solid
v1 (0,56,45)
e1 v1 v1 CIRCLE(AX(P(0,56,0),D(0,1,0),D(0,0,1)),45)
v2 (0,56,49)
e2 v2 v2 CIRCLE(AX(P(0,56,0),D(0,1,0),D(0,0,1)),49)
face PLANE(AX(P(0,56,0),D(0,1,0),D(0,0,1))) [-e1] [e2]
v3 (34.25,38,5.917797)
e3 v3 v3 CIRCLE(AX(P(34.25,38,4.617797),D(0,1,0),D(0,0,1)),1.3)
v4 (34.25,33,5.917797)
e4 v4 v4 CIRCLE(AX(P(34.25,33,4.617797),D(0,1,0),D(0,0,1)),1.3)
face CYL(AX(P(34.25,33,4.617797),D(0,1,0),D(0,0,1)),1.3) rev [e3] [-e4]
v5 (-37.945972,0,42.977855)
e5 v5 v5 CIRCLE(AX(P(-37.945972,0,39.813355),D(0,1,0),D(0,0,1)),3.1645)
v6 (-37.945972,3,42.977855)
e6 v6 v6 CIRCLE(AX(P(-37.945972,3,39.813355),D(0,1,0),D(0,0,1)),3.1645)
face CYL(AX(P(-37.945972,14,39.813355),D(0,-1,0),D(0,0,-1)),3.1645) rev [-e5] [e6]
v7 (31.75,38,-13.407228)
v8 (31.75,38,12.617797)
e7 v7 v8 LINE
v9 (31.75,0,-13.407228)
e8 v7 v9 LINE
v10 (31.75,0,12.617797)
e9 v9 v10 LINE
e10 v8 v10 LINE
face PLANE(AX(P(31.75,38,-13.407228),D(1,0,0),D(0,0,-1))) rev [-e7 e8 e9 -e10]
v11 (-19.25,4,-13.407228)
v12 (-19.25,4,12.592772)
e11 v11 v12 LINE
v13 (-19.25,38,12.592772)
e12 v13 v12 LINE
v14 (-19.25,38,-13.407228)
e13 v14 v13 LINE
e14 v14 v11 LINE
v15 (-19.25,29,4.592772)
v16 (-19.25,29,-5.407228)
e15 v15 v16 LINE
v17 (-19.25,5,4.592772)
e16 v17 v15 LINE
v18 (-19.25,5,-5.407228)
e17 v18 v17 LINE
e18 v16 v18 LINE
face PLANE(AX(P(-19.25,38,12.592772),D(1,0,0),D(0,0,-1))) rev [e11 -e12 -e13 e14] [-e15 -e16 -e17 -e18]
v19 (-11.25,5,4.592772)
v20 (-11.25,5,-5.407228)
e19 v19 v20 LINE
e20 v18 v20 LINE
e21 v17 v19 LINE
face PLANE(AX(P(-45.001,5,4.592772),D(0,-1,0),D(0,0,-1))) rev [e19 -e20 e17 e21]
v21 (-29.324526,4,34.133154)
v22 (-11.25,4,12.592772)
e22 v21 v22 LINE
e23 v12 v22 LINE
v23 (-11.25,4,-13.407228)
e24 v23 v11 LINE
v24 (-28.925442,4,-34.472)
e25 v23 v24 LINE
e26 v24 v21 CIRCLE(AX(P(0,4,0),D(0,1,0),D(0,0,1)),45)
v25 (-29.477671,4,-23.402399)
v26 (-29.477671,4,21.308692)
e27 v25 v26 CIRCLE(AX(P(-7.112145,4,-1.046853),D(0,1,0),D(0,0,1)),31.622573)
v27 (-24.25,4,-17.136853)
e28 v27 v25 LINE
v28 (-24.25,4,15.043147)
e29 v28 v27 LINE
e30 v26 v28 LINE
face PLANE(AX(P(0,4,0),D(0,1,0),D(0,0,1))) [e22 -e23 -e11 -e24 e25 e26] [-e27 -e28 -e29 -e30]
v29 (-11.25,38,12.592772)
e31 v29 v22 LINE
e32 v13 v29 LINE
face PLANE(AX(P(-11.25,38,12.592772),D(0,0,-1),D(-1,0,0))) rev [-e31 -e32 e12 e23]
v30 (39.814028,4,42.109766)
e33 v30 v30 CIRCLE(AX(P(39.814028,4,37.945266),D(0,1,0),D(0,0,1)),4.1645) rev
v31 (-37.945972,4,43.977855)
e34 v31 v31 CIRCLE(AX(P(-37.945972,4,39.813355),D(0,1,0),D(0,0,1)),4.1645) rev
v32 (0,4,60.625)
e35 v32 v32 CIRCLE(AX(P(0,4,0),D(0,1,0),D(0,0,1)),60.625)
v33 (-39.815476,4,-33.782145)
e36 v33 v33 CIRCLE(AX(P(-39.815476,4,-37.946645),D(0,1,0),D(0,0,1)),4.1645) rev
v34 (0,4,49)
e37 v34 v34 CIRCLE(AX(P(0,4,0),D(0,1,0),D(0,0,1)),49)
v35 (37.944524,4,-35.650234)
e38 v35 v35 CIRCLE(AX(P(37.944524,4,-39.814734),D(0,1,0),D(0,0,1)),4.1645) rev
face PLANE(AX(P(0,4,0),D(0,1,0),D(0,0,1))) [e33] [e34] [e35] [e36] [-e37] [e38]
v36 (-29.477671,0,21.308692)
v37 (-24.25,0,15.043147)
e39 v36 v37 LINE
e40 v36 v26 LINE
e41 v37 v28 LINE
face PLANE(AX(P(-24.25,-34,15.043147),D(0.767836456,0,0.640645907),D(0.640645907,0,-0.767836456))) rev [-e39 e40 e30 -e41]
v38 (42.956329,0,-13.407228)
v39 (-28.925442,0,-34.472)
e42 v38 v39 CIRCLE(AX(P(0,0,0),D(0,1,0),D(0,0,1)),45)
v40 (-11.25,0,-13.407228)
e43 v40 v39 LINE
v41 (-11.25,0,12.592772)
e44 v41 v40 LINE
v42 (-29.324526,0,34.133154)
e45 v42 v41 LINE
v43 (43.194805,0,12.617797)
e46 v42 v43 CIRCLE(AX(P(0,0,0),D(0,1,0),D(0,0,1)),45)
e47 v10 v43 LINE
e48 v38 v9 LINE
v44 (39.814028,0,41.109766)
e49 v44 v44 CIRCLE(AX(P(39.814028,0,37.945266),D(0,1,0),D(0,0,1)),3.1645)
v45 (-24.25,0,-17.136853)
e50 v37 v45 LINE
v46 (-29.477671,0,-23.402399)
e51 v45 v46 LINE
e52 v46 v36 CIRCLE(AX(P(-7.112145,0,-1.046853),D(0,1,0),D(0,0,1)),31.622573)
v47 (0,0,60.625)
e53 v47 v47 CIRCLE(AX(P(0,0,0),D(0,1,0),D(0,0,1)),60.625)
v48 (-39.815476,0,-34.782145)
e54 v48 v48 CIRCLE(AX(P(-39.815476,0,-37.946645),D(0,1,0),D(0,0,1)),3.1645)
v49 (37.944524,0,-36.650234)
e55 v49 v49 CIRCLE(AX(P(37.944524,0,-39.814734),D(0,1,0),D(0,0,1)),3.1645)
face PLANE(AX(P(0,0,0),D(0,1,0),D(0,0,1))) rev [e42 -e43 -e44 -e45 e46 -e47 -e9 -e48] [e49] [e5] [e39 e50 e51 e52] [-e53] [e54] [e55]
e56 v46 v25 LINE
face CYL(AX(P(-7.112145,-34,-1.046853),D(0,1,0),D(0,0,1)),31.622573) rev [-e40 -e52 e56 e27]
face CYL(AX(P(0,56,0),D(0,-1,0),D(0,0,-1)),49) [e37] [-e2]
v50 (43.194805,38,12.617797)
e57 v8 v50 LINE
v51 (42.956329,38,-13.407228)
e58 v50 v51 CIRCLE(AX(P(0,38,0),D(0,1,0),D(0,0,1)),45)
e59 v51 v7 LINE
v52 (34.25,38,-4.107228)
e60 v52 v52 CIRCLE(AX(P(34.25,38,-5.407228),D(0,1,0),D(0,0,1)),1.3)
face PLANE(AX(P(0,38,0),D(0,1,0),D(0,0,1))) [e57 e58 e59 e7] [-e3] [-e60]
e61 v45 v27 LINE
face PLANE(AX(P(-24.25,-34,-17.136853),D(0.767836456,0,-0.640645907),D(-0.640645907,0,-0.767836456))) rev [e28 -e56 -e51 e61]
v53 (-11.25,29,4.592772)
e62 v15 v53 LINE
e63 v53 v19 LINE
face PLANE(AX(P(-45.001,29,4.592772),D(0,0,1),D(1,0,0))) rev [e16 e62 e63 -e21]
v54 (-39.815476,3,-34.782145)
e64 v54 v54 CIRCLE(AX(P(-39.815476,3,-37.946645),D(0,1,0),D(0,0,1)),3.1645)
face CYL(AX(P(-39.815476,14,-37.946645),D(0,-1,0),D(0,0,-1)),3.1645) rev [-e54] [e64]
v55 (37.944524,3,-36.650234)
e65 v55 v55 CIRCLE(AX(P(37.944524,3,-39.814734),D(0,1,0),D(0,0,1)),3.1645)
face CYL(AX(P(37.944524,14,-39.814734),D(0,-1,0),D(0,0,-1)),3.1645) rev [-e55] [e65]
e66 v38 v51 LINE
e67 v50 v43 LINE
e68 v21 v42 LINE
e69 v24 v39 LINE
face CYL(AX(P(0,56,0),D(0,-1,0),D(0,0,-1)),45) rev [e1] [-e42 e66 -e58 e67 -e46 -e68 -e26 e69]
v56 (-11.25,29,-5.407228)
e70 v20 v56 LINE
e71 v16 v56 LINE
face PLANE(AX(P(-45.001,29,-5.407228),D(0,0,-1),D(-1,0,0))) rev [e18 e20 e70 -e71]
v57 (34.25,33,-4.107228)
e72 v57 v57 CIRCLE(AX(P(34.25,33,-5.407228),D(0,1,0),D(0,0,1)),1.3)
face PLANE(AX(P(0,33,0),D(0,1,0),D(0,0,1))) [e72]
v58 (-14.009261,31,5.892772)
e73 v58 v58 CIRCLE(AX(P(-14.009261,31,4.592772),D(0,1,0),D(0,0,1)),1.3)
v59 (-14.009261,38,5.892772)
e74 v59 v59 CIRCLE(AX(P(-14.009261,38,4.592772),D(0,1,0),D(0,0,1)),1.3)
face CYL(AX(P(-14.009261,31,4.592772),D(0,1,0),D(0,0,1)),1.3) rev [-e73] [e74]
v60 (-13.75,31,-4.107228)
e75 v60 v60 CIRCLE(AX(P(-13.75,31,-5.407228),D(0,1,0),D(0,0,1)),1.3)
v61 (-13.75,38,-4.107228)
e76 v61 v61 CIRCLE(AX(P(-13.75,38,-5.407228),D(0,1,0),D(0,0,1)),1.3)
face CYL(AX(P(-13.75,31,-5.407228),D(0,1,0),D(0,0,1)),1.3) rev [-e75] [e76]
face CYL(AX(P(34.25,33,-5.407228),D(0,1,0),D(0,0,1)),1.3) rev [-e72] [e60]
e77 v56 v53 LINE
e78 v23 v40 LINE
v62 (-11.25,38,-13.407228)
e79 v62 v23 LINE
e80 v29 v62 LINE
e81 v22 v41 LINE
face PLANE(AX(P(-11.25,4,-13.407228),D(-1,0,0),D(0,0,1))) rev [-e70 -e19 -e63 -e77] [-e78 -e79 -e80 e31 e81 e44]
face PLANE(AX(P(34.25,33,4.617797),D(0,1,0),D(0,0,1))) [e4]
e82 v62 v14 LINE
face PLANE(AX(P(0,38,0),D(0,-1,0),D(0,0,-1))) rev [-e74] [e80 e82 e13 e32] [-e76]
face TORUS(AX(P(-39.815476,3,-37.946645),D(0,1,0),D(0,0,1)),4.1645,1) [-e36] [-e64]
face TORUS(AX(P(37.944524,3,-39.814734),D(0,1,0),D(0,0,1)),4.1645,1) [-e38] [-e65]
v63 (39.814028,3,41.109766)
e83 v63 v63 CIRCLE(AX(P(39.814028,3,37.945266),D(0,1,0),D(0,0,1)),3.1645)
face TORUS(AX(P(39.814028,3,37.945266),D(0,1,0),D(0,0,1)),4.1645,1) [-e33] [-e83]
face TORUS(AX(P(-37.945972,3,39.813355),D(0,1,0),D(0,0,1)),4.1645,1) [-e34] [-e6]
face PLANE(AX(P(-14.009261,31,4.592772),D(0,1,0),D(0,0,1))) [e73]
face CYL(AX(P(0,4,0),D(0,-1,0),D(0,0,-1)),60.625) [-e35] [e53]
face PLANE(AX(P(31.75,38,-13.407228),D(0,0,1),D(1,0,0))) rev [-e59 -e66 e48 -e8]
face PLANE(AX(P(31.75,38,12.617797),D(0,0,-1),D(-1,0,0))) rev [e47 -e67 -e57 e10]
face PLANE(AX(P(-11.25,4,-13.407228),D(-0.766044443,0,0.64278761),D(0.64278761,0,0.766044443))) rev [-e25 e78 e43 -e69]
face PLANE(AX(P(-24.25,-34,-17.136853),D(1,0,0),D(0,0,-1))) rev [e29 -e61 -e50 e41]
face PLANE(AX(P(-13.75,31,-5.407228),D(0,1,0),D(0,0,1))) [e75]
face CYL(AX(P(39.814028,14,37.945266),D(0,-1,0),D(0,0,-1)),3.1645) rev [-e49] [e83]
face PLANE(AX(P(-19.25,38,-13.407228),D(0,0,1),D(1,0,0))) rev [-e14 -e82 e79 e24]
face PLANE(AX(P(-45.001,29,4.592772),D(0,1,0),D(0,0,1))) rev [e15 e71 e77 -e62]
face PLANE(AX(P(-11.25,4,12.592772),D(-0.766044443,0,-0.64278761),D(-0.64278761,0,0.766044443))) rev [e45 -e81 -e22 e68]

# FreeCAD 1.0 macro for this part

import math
import FreeCAD as App
import Part
import Sketcher
Q = App.Units.Quantity


def edges_at(feature, points):
    """Names of the edges that pass closest to the given points."""
    edges = feature.Shape.Edges
    near = lambda p: min(range(len(edges)), key=lambda i: edges[i].distToShape(Part.Vertex(*p))[0])
    return sorted({f"Edge{near(p) + 1}" for p in points})

doc = App.newDocument("Part")
body = doc.addObject("PartDesign::Body", "Body")

# Sketch on XZ plane
sketch1 = body.newObject("Sketcher::SketchObject", "Sketch")
sketch1.AttachmentSupport = (doc.getObject("XZ_Plane"), [""])
sketch1.MapMode = "FlatFace"
sketch1.addGeometry([
    Part.LineSegment(App.Vector(-11, 13, 0), App.Vector(-11, -13, 0)),
    Part.LineSegment(App.Vector(-11, -13, 0), App.Vector(-29, -34, 0)),
    Part.ArcOfCircle(Part.Circle(App.Vector(0, 0, 0), App.Vector(0, 0, 1), 45), math.radians(131), math.radians(230)),
    Part.LineSegment(App.Vector(-29, 34, 0), App.Vector(-11, 13, 0)),
], False)
sketch1.addConstraint([
    Sketcher.Constraint("Coincident", 0, 2, 1, 1),
    Sketcher.Constraint("Coincident", 1, 2, 2, 2),
    Sketcher.Constraint("Coincident", 2, 1, 3, 1),
    Sketcher.Constraint("Coincident", 3, 2, 0, 1),
    Sketcher.Constraint("Vertical", 0),
    Sketcher.Constraint("Coincident", 2, 3, -1, 1),
    Sketcher.Constraint("Radius", 2, Q("45 mm")),
    Sketcher.Constraint("DistanceY", 0, 2, 0, 1, Q("26 mm")),
    Sketcher.Constraint("Angle", 1, Q("-130 deg")),
    Sketcher.Constraint("Angle", 3, Q("-50 deg")),
    Sketcher.Constraint("DistanceX", 0, 2, -1, 1, Q("11.25 mm")),
    Sketcher.Constraint("DistanceY", 1, 2, -1, 1, Q("34.472 mm")),
])
pad1 = body.newObject("PartDesign::Pad", "Pad")
pad1.Profile = sketch1
pad1.Length = 4
pad1.Reversed = True

# Sketch on XZ plane
sketch2 = body.newObject("Sketcher::SketchObject", "Sketch001")
sketch2.AttachmentSupport = (doc.getObject("XZ_Plane"), [""])
sketch2.MapMode = "FlatFace"
sketch2.AttachmentOffset = App.Placement(App.Vector(0, 0, -4), App.Rotation())
sketch2.addGeometry([
    Part.LineSegment(App.Vector(-19, -13, 0), App.Vector(-19, 13, 0)),
    Part.LineSegment(App.Vector(-19, 13, 0), App.Vector(-11, 13, 0)),
    Part.LineSegment(App.Vector(-11, 13, 0), App.Vector(-11, -13, 0)),
    Part.LineSegment(App.Vector(-11, -13, 0), App.Vector(-19, -13, 0)),
], False)
sketch2.addConstraint([
    Sketcher.Constraint("Coincident", 0, 2, 1, 1),
    Sketcher.Constraint("Coincident", 1, 2, 2, 1),
    Sketcher.Constraint("Coincident", 2, 2, 3, 1),
    Sketcher.Constraint("Coincident", 3, 2, 0, 1),
    Sketcher.Constraint("Vertical", 0),
    Sketcher.Constraint("Horizontal", 1),
    Sketcher.Constraint("Vertical", 2),
    Sketcher.Constraint("Horizontal", 3),
    Sketcher.Constraint("DistanceX", 1, 1, 1, 2, Q("8 mm")),
    Sketcher.Constraint("DistanceY", 0, 1, 0, 2, Q("26 mm")),
    Sketcher.Constraint("DistanceX", 0, 2, -1, 1, Q("19.25 mm")),
    Sketcher.Constraint("DistanceY", -1, 1, 0, 2, Q("12.592772 mm")),
])
pad2 = body.newObject("PartDesign::Pad", "Pad001")
pad2.Profile = sketch2
pad2.Length = 34
pad2.Reversed = True

# Sketch on YZ plane
sketch3 = body.newObject("Sketcher::SketchObject", "Sketch002")
sketch3.AttachmentSupport = (doc.getObject("YZ_Plane"), [""])
sketch3.MapMode = "FlatFace"
sketch3.AttachmentOffset = App.Placement(App.Vector(0, 0, -11.25), App.Rotation())
sketch3.addGeometry([
    Part.LineSegment(App.Vector(29, 5, 0), App.Vector(5, 5, 0)),
    Part.LineSegment(App.Vector(5, 5, 0), App.Vector(5, -5, 0)),
    Part.LineSegment(App.Vector(5, -5, 0), App.Vector(29, -5, 0)),
    Part.LineSegment(App.Vector(29, -5, 0), App.Vector(29, 5, 0)),
], False)
sketch3.addConstraint([
    Sketcher.Constraint("Coincident", 0, 2, 1, 1),
    Sketcher.Constraint("Coincident", 1, 2, 2, 1),
    Sketcher.Constraint("Coincident", 2, 2, 3, 1),
    Sketcher.Constraint("Coincident", 3, 2, 0, 1),
    Sketcher.Constraint("Horizontal", 0),
    Sketcher.Constraint("Vertical", 1),
    Sketcher.Constraint("Horizontal", 2),
    Sketcher.Constraint("Vertical", 3),
    Sketcher.Constraint("DistanceX", 0, 2, 0, 1, Q("24 mm")),
    Sketcher.Constraint("DistanceY", 1, 2, 1, 1, Q("10 mm")),
    Sketcher.Constraint("DistanceX", -1, 1, 0, 2, Q("5 mm")),
    Sketcher.Constraint("DistanceY", -1, 1, 0, 2, Q("4.592772 mm")),
])
pocket1 = body.newObject("PartDesign::Pocket", "Pocket")
pocket1.Profile = sketch3
pocket1.Type = "UpToFirst"

# Sketch on XZ plane
sketch4 = body.newObject("Sketcher::SketchObject", "Sketch003")
sketch4.AttachmentSupport = (doc.getObject("XZ_Plane"), [""])
sketch4.MapMode = "FlatFace"
sketch4.AttachmentOffset = App.Placement(App.Vector(0, 0, -38), App.Rotation())
sketch4.addGeometry([
    Part.Circle(App.Vector(-13.8, -5.4, 0), App.Vector(0, 0, 1), 1.3),
    Part.Circle(App.Vector(-14, 4.6, 0), App.Vector(0, 0, 1), 1.3),
], False)
sketch4.addConstraint([
    Sketcher.Constraint("Equal", 0, 1),
    Sketcher.Constraint("Diameter", 0, Q("2.6 mm")),
    Sketcher.Constraint("DistanceY", 0, 3, 1, 3, Q("10 mm")),
    Sketcher.Constraint("DistanceX", 0, 3, -1, 1, Q("13.75 mm")),
    Sketcher.Constraint("DistanceX", 1, 3, -1, 1, Q("14.009261 mm")),
    Sketcher.Constraint("DistanceY", 0, 3, -1, 1, Q("5.407228 mm")),
])
pocket2 = body.newObject("PartDesign::Pocket", "Pocket001")
pocket2.Profile = sketch4
pocket2.Length = 7
pocket2.Reversed = True
body2 = doc.addObject("PartDesign::Body", "Body001")

# Sketch on XZ plane
sketch5 = body2.newObject("Sketcher::SketchObject", "Sketch004")
sketch5.AttachmentSupport = (doc.getObject("XZ_Plane001"), [""])
sketch5.MapMode = "FlatFace"
sketch5.addGeometry([
    Part.LineSegment(App.Vector(32, -13, 0), App.Vector(32, 13, 0)),
    Part.LineSegment(App.Vector(32, 13, 0), App.Vector(43, 13, 0)),
    Part.ArcOfCircle(Part.Circle(App.Vector(0, 0, 0), App.Vector(0, 0, 1), 45), math.radians(-17), math.radians(16)),
    Part.LineSegment(App.Vector(43, -13, 0), App.Vector(32, -13, 0)),
], False)
sketch5.addConstraint([
    Sketcher.Constraint("Coincident", 0, 2, 1, 1),
    Sketcher.Constraint("Coincident", 1, 2, 2, 2),
    Sketcher.Constraint("Coincident", 2, 1, 3, 1),
    Sketcher.Constraint("Coincident", 3, 2, 0, 1),
    Sketcher.Constraint("Vertical", 0),
    Sketcher.Constraint("Horizontal", 1),
    Sketcher.Constraint("Horizontal", 3),
    Sketcher.Constraint("Coincident", 2, 3, -1, 1),
    Sketcher.Constraint("DistanceX", 3, 2, 3, 1, Q("11.3 mm")),
    Sketcher.Constraint("DistanceX", -1, 1, 0, 2, Q("31.75 mm")),
    Sketcher.Constraint("Radius", 2, Q("45.089425 mm")),
    Sketcher.Constraint("DistanceX", 1, 1, 1, 2, Q("11.53796 mm")),
])
pad3 = body2.newObject("PartDesign::Pad", "Pad002")
pad3.Profile = sketch5
pad3.Length = 38
pad3.Reversed = True
body.AllowCompound = True
doc.recompute()

boolean = body.newObject("PartDesign::Boolean", "Boolean")
boolean.Type = "Fuse"
boolean.addObjects([body2])

# Sketch on XZ plane
sketch6 = body.newObject("Sketcher::SketchObject", "Sketch005")
sketch6.AttachmentSupport = (doc.getObject("XZ_Plane"), [""])
sketch6.MapMode = "FlatFace"
sketch6.addGeometry([
    Part.Circle(App.Vector(0, 0, 0), App.Vector(0, 0, 1), 49),
    Part.Circle(App.Vector(0, 0, 0), App.Vector(0, 0, 1), 45),
], False)
sketch6.addConstraint([
    Sketcher.Constraint("Coincident", 0, 3, -1, 1),
    Sketcher.Constraint("Coincident", 1, 3, -1, 1),
    Sketcher.Constraint("Diameter", 0, Q("98 mm")),
    Sketcher.Constraint("Diameter", 1, Q("90 mm")),
])
pad4 = body.newObject("PartDesign::Pad", "Pad003")
pad4.Profile = sketch6
pad4.Length = 56
pad4.Reversed = True

# Sketch on XZ plane
sketch7 = body.newObject("Sketcher::SketchObject", "Sketch006")
sketch7.AttachmentSupport = (doc.getObject("XZ_Plane"), [""])
sketch7.MapMode = "FlatFace"
sketch7.AttachmentOffset = App.Placement(App.Vector(0, 0, -4), App.Rotation())
sketch7.addGeometry([
    Part.LineSegment(App.Vector(-24, 15, 0), App.Vector(-24, -17, 0)),
    Part.LineSegment(App.Vector(-24, -17, 0), App.Vector(-29, -23, 0)),
    Part.ArcOfCircle(Part.Circle(App.Vector(-7, -1, 0), App.Vector(0, 0, 1), 32), math.radians(135), math.radians(225)),
    Part.LineSegment(App.Vector(-29, 21, 0), App.Vector(-24, 15, 0)),
], False)
sketch7.addConstraint([
    Sketcher.Constraint("Coincident", 0, 2, 1, 1),
    Sketcher.Constraint("Coincident", 1, 2, 2, 2),
    Sketcher.Constraint("Coincident", 2, 1, 3, 1),
    Sketcher.Constraint("Coincident", 3, 2, 0, 1),
    Sketcher.Constraint("Vertical", 0),
    Sketcher.Constraint("Vertical", 1, 2, 2, 1),
    Sketcher.Constraint("Equal", 1, 3),
    Sketcher.Constraint("DistanceY", 0, 2, 0, 1, Q("32.18 mm")),
    Sketcher.Constraint("Angle", 1, Q("-129.84 deg")),
    Sketcher.Constraint("Distance", 1, Q("8.16 mm")),
    Sketcher.Constraint("DistanceX", 0, 2, -1, 1, Q("24.25 mm")),
    Sketcher.Constraint("Radius", 2, Q("31.622573 mm")),
    Sketcher.Constraint("DistanceY", 1, 2, -1, 1, Q("23.402399 mm")),
])
pocket3 = body.newObject("PartDesign::Pocket", "Pocket002")
pocket3.Profile = sketch7
pocket3.Length = 38
pocket3.Reversed = True

# Sketch on XZ plane
sketch8 = body.newObject("Sketcher::SketchObject", "Sketch007")
sketch8.AttachmentSupport = (doc.getObject("XZ_Plane"), [""])
sketch8.MapMode = "FlatFace"
sketch8.addGeometry([
    Part.Circle(App.Vector(0, 0, 0), App.Vector(0, 0, 1), 61),
    Part.Circle(App.Vector(0, 0, 0), App.Vector(0, 0, 1), 49),
], False)
sketch8.addConstraint([
    Sketcher.Constraint("Coincident", 0, 3, -1, 1),
    Sketcher.Constraint("Coincident", 1, 3, -1, 1),
    Sketcher.Constraint("Diameter", 1, Q("98 mm")),
    Sketcher.Constraint("Diameter", 0, Q("121.25 mm")),
])
pad5 = body.newObject("PartDesign::Pad", "Pad004")
pad5.Profile = sketch8
pad5.Length = 4
pad5.Reversed = True

# Sketch on XZ plane
sketch9 = body.newObject("Sketcher::SketchObject", "Sketch008")
sketch9.AttachmentSupport = (doc.getObject("XZ_Plane"), [""])
sketch9.MapMode = "FlatFace"
sketch9.addGeometry([
    Part.Circle(App.Vector(-39.8, -37.9, 0), App.Vector(0, 0, 1), 3.2),
    Part.Circle(App.Vector(37.9, -39.8, 0), App.Vector(0, 0, 1), 3.2),
    Part.Circle(App.Vector(39.8, 37.9, 0), App.Vector(0, 0, 1), 3.2),
    Part.Circle(App.Vector(-37.9, 39.8, 0), App.Vector(0, 0, 1), 3.2),
], False)
sketch9.addConstraint([
    Sketcher.Constraint("Equal", 0, 1),
    Sketcher.Constraint("Equal", 1, 2),
    Sketcher.Constraint("Equal", 2, 3),
    Sketcher.Constraint("Diameter", 0, Q("6.329 mm")),
    Sketcher.Constraint("DistanceX", 0, 3, 1, 3, Q("77.76 mm")),
    Sketcher.Constraint("DistanceY", 1, 3, 2, 3, Q("77.76 mm")),
    Sketcher.Constraint("DistanceX", 3, 3, 2, 3, Q("77.76 mm")),
    Sketcher.Constraint("DistanceY", 0, 3, 3, 3, Q("77.76 mm")),
    Sketcher.Constraint("DistanceY", 1, 3, 0, 3, Q("1.868089 mm")),
    Sketcher.Constraint("DistanceX", 0, 3, -1, 1, Q("39.815476 mm")),
    Sketcher.Constraint("DistanceY", 0, 3, -1, 1, Q("37.946645 mm")),
    Sketcher.Constraint("DistanceX", -1, 1, 2, 3, Q("39.814028 mm")),
])
pocket4 = body.newObject("PartDesign::Pocket", "Pocket003")
pocket4.Profile = sketch9
pocket4.Length = 14

# Sketch on XZ plane
sketch10 = body.newObject("Sketcher::SketchObject", "Sketch009")
sketch10.AttachmentSupport = (doc.getObject("XZ_Plane"), [""])
sketch10.MapMode = "FlatFace"
sketch10.AttachmentOffset = App.Placement(App.Vector(0, 0, -38), App.Rotation())
sketch10.addGeometry([
    Part.Circle(App.Vector(34.2, -5.4, 0), App.Vector(0, 0, 1), 1.3),
    Part.Circle(App.Vector(34.2, 4.6, 0), App.Vector(0, 0, 1), 1.3),
], False)
sketch10.addConstraint([
    Sketcher.Constraint("Equal", 0, 1),
    Sketcher.Constraint("Vertical", 0, 3, 1, 3),
    Sketcher.Constraint("Diameter", 0, Q("2.6 mm")),
    Sketcher.Constraint("DistanceX", -1, 1, 0, 3, Q("34.25 mm")),
    Sketcher.Constraint("DistanceY", 0, 3, -1, 1, Q("5.407228 mm")),
    Sketcher.Constraint("DistanceY", -1, 1, 1, 3, Q("4.617797 mm")),
])
pocket5 = body.newObject("PartDesign::Pocket", "Pocket004")
pocket5.Profile = sketch10
pocket5.Length = 5
pocket5.Reversed = True
doc.recompute()

fillet = body.newObject("PartDesign::Fillet", "Fillet")
fillet.Base = (pocket5, edges_at(pocket5, [
    (-41.11, 4, 39.813),
    (36.65, 4, 37.945),
    (34.78, 4, -39.815),
    (-42.98, 4, -37.947),
]))
fillet.Radius = 1

doc.recompute()
